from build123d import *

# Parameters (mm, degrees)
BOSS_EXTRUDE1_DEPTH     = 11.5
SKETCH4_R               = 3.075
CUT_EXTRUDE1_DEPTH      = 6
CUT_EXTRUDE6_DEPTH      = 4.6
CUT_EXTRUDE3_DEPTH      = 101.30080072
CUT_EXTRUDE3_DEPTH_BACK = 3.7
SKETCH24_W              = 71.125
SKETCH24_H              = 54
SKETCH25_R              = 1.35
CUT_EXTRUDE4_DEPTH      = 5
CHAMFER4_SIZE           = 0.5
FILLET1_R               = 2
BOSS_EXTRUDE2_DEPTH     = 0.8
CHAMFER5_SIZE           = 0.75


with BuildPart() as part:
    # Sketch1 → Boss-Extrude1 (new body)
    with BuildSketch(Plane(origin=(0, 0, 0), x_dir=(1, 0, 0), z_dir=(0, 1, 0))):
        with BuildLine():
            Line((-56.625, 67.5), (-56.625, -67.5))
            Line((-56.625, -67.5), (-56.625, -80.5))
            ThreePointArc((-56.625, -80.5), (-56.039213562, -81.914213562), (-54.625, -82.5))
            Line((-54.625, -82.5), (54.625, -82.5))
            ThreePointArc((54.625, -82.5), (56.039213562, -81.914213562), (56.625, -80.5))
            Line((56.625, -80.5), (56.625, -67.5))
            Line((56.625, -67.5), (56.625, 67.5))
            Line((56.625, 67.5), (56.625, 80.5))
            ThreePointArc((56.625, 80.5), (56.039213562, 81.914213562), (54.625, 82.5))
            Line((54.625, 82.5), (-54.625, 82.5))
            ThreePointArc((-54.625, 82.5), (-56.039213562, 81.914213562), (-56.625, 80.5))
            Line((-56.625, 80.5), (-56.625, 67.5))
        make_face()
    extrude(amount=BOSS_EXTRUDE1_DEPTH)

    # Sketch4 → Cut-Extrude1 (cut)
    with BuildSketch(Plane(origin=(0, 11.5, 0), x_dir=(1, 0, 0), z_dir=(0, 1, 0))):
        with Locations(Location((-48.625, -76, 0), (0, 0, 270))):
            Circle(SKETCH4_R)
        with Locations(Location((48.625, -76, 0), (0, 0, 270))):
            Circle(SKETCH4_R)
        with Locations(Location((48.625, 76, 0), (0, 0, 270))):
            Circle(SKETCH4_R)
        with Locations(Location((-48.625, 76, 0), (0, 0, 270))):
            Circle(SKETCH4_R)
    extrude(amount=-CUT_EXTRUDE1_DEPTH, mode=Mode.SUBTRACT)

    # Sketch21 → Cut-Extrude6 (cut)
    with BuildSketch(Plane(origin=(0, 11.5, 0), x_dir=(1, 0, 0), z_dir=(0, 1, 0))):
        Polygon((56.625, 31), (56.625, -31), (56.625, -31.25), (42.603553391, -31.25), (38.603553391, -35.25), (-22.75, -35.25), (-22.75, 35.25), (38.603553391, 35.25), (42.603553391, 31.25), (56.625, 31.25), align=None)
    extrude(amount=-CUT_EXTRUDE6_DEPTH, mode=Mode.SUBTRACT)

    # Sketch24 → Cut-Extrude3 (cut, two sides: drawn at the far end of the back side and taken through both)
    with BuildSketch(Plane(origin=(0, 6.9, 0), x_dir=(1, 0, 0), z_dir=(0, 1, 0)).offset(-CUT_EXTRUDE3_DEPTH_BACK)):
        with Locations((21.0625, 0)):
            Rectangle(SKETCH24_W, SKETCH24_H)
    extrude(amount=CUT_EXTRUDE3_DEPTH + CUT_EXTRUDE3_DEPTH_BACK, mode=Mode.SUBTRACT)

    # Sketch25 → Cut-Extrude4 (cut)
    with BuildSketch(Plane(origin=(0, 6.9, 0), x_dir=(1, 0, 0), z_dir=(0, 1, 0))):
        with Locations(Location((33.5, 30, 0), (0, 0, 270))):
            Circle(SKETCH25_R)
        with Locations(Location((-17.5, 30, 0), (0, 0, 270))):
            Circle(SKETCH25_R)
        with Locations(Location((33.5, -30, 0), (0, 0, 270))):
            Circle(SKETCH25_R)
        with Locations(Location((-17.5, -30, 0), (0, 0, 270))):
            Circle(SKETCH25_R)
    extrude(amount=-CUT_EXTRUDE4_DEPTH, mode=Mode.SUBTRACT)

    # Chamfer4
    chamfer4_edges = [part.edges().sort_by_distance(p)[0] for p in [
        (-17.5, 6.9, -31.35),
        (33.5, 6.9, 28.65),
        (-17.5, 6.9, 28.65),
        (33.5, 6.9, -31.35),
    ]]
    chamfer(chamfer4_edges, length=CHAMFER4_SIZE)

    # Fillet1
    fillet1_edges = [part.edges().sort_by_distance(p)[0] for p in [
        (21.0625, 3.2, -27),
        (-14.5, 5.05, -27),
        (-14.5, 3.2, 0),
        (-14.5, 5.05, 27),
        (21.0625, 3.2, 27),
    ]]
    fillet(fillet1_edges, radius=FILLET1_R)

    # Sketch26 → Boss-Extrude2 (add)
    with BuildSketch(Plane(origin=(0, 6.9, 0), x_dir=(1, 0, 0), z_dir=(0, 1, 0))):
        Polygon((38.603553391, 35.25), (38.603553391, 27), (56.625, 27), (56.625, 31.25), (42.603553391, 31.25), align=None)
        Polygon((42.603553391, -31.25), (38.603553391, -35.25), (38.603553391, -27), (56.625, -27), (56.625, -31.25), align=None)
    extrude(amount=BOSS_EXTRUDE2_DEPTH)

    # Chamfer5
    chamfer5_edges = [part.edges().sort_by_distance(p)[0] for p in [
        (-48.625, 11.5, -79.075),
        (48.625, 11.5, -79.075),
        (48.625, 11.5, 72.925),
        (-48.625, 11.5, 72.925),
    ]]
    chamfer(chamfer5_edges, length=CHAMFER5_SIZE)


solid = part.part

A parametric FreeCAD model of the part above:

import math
import FreeCAD as App
import Part
import Sketcher

V = App.Vector


def edges_at(feature, points):
    """Names of the edges that pass closest to the given points."""
    edges = feature.Shape.Edges
    near = lambda p: min(range(len(edges)), key=lambda i: edges[i].distToShape(Part.Vertex(*p))[0])
    return sorted({f"Edge{near(p) + 1}" for p in points})

doc = App.newDocument("Part")
body = doc.addObject("PartDesign::Body", "Body")

# Sketch on XZ plane
sketch1 = body.newObject("Sketcher::SketchObject", "Sketch")
sketch1.AttachmentSupport = (doc.getObject("XZ_Plane"), [""])
sketch1.MapMode = "FlatFace"
sketch1.addGeometry([
    Part.ArcOfCircle(Part.Circle(V(-54.6, 80.5, 0), V(0, 0, 1), 2), math.radians(90), math.radians(180)),  # 0
    Part.LineSegment(V(-54.6, 82.5, 0), V(54.6, 82.5, 0)),  # 1
    Part.ArcOfCircle(Part.Circle(V(54.6, 80.5, 0), V(0, 0, 1), 2), math.radians(0), math.radians(90)),  # 2
    Part.LineSegment(V(56.6, 80.5, 0), V(56.6, -80.5, 0)),  # 3
    Part.ArcOfCircle(Part.Circle(V(54.6, -80.5, 0), V(0, 0, 1), 2), math.radians(-90), math.radians(0)),  # 4
    Part.LineSegment(V(54.6, -82.5, 0), V(-54.6, -82.5, 0)),  # 5
    Part.ArcOfCircle(Part.Circle(V(-54.6, -80.5, 0), V(0, 0, 1), 2), math.radians(-180), math.radians(-90)),  # 6
    Part.LineSegment(V(-56.6, -80.5, 0), V(-56.6, 80.5, 0)),  # 7
], False)
sketch1.addConstraint([
    Sketcher.Constraint("Tangent", 0, 1, 1, 1),
    Sketcher.Constraint("Tangent", 1, 2, 2, 2),
    Sketcher.Constraint("Tangent", 2, 1, 3, 1),
    Sketcher.Constraint("Tangent", 3, 2, 4, 2),
    Sketcher.Constraint("Tangent", 4, 1, 5, 1),
    Sketcher.Constraint("Tangent", 5, 2, 6, 2),
    Sketcher.Constraint("Tangent", 6, 1, 7, 1),
    Sketcher.Constraint("Tangent", 7, 2, 0, 2),
    Sketcher.Constraint("Horizontal", 1),
    Sketcher.Constraint("Vertical", 3),
    Sketcher.Constraint("Horizontal", 5),
    Sketcher.Constraint("Vertical", 7),
    Sketcher.Constraint("Equal", 0, 2),
    Sketcher.Constraint("Equal", 2, 4),
    Sketcher.Constraint("Equal", 4, 6),
    Sketcher.Constraint("Symmetric", 0, 3, 4, 3, -1, 1),
    Sketcher.Constraint("Radius", 0, 2.0),
    Sketcher.Constraint("DistanceY", 3, 2, 3, 1, 161.0),
    Sketcher.Constraint("DistanceX", 1, 1, 1, 2, 109.25),
])
pad1 = body.newObject("PartDesign::Pad", "Pad")
pad1.Profile = sketch1
pad1.Length = 11.5
pad1.Reversed = True

# Sketch on XZ plane
sketch2 = body.newObject("Sketcher::SketchObject", "Sketch001")
sketch2.AttachmentSupport = (doc.getObject("XZ_Plane"), [""])
sketch2.MapMode = "FlatFace"
sketch2.AttachmentOffset = App.Placement(V(0, 0, -11.5), App.Rotation())
sketch2.addGeometry([
    Part.Circle(V(-48.6, 76, 0), V(0, 0, 1), 3.1),
    Part.Circle(V(48.6, 76, 0), V(0, 0, 1), 3.1),
    Part.Circle(V(48.6, -76, 0), V(0, 0, 1), 3.1),
    Part.Circle(V(-48.6, -76, 0), V(0, 0, 1), 3.1),
], False)
sketch2.addConstraint([
    Sketcher.Constraint("Equal", 0, 1),
    Sketcher.Constraint("Equal", 1, 2),
    Sketcher.Constraint("Equal", 2, 3),
    Sketcher.Constraint("Symmetric", 0, 3, 2, 3, -1, 1),
    Sketcher.Constraint("Symmetric", 1, 3, 3, 3, -1, 1),
    Sketcher.Constraint("Symmetric", 0, 3, 1, 3, -2),
    Sketcher.Constraint("Diameter", 0, 6.15),
    Sketcher.Constraint("DistanceY", -1, 1, 0, 3, 76.0),
    Sketcher.Constraint("DistanceX", 0, 3, 1, 3, 97.25),
])
pocket1 = body.newObject("PartDesign::Pocket", "Pocket")
pocket1.Profile = sketch2
pocket1.Length = 6
pocket1.Reversed = True

# Sketch on XZ plane
sketch3 = body.newObject("Sketcher::SketchObject", "Sketch002")
sketch3.AttachmentSupport = (doc.getObject("XZ_Plane"), [""])
sketch3.MapMode = "FlatFace"
sketch3.AttachmentOffset = App.Placement(V(0, 0, -11.5), App.Rotation())
sketch3.addGeometry([
    Part.LineSegment(V(57, 31, 0), V(57, -31, 0)),  # 0
    Part.LineSegment(V(57, -31, 0), V(43, -31, 0)),  # 1
    Part.LineSegment(V(43, -31, 0), V(39, -35, 0)),  # 2
    Part.LineSegment(V(39, -35, 0), V(-23, -35, 0)),  # 3
    Part.LineSegment(V(-23, -35, 0), V(-23, 35, 0)),  # 4
    Part.LineSegment(V(-23, 35, 0), V(39, 35, 0)),  # 5
    Part.LineSegment(V(39, 35, 0), V(43, 31, 0)),  # 6
    Part.LineSegment(V(43, 31, 0), V(57, 31, 0)),  # 7
], False)
sketch3.addConstraint([
    Sketcher.Constraint("Coincident", 0, 2, 1, 1),
    Sketcher.Constraint("Coincident", 1, 2, 2, 1),
    Sketcher.Constraint("Coincident", 2, 2, 3, 1),
    Sketcher.Constraint("Coincident", 3, 2, 4, 1),
    Sketcher.Constraint("Coincident", 4, 2, 5, 1),
    Sketcher.Constraint("Coincident", 5, 2, 6, 1),
    Sketcher.Constraint("Coincident", 6, 2, 7, 1),
    Sketcher.Constraint("Coincident", 7, 2, 0, 1),
    Sketcher.Constraint("Vertical", 0),
    Sketcher.Constraint("Horizontal", 1),
    Sketcher.Constraint("Horizontal", 3),
    Sketcher.Constraint("Vertical", 4),
    Sketcher.Constraint("Horizontal", 5),
    Sketcher.Constraint("Horizontal", 7),
    Sketcher.Constraint("Symmetric", 2, 2, 5, 2, -1),
    Sketcher.Constraint("Symmetric", 1, 2, 6, 2, -1),
    Sketcher.Constraint("Perpendicular", 2, 6),
    Sketcher.Constraint("DistanceY", 0, 2, 0, 1, 62.5),
    Sketcher.Constraint("DistanceY", 4, 1, 4, 2, 70.5),
    Sketcher.Constraint("DistanceX", 3, 2, -1, 1, 22.75),
    Sketcher.Constraint("DistanceX", -1, 1, 0, 2, 56.625),
    Sketcher.Constraint("DistanceX", 1, 2, 1, 1, 14.021447),
])
pocket2 = body.newObject("PartDesign::Pocket", "Pocket001")
pocket2.Profile = sketch3
pocket2.Length = 4.6
pocket2.Reversed = True

# Sketch on XZ plane
sketch4 = body.newObject("Sketcher::SketchObject", "Sketch003")
sketch4.AttachmentSupport = (doc.getObject("XZ_Plane"), [""])
sketch4.MapMode = "FlatFace"
sketch4.AttachmentOffset = App.Placement(V(0, 0, -6.9), App.Rotation())
sketch4.addGeometry([
    Part.LineSegment(V(-14, -27, 0), V(-14, 27, 0)),
    Part.LineSegment(V(-14, 27, 0), V(57, 27, 0)),
    Part.LineSegment(V(57, 27, 0), V(57, -27, 0)),
    Part.LineSegment(V(57, -27, 0), V(-14, -27, 0)),
], False)
sketch4.addConstraint([
    Sketcher.Constraint("Coincident", 0, 2, 1, 1),
    Sketcher.Constraint("Coincident", 1, 2, 2, 1),
    Sketcher.Constraint("Coincident", 2, 2, 3, 1),
    Sketcher.Constraint("Coincident", 3, 2, 0, 1),
    Sketcher.Constraint("Vertical", 0),
    Sketcher.Constraint("Horizontal", 1),
    Sketcher.Constraint("Vertical", 2),
    Sketcher.Constraint("Horizontal", 3),
    Sketcher.Constraint("DistanceY", 0, 1, 0, 2, 54.0),
    Sketcher.Constraint("DistanceY", -1, 1, 0, 2, 27.0),
    Sketcher.Constraint("DistanceX", 0, 2, -1, 1, 14.5),
    Sketcher.Constraint("DistanceX", 1, 1, 1, 2, 71.125),
])
pocket3 = body.newObject("PartDesign::Pocket", "Pocket002")
pocket3.Profile = sketch4
pocket3.Type = "TwoLengths"
pocket3.Length = 101.300801
pocket3.Length2 = 3.7

# Sketch on XZ plane
sketch5 = body.newObject("Sketcher::SketchObject", "Sketch004")
sketch5.AttachmentSupport = (doc.getObject("XZ_Plane"), [""])
sketch5.MapMode = "FlatFace"
sketch5.AttachmentOffset = App.Placement(V(0, 0, -6.9), App.Rotation())
sketch5.addGeometry([
    Part.Circle(V(33.5, -30, 0), V(0, 0, 1), 1.4),
    Part.Circle(V(-17.5, -30, 0), V(0, 0, 1), 1.4),
    Part.Circle(V(33.5, 30, 0), V(0, 0, 1), 1.4),
    Part.Circle(V(-17.5, 30, 0), V(0, 0, 1), 1.4),
], False)
sketch5.addConstraint([
    Sketcher.Constraint("Equal", 0, 1),
    Sketcher.Constraint("Equal", 1, 2),
    Sketcher.Constraint("Equal", 2, 3),
    Sketcher.Constraint("Symmetric", 0, 3, 2, 3, -1),
    Sketcher.Constraint("Symmetric", 1, 3, 3, 3, -1),
    Sketcher.Constraint("Horizontal", 0, 3, 1, 3),
    Sketcher.Constraint("Diameter", 0, 2.7),
    Sketcher.Constraint("DistanceY", 0, 3, -1, 1, 30.0),
    Sketcher.Constraint("DistanceX", 1, 3, 0, 3, 51.0),
    Sketcher.Constraint("DistanceX", -1, 1, 0, 3, 33.5),
])
pocket4 = body.newObject("PartDesign::Pocket", "Pocket003")
pocket4.Profile = sketch5
pocket4.Length = 5
pocket4.Reversed = True
doc.recompute()

chamfer = body.newObject("PartDesign::Chamfer", "Chamfer")
chamfer.Base = (pocket4, edges_at(pocket4, [
    (-17.5, 6.9, -31.35),
    (33.5, 6.9, 28.65),
    (-17.5, 6.9, 28.65),
    (33.5, 6.9, -31.35),
]))
chamfer.Size = 0.5
doc.recompute()

fillet = body.newObject("PartDesign::Fillet", "Fillet")
fillet.Base = (chamfer, edges_at(chamfer, [
    (21.062, 3.2, -27),
    (-14.5, 5.05, -27),
    (-14.5, 3.2, 0),
    (-14.5, 5.05, 27),
    (21.062, 3.2, 27),
]))
fillet.Radius = 2

# Sketch on XZ plane
sketch6 = body.newObject("Sketcher::SketchObject", "Sketch005")
sketch6.AttachmentSupport = (doc.getObject("XZ_Plane"), [""])
sketch6.MapMode = "FlatFace"
sketch6.AttachmentOffset = App.Placement(V(0, 0, -6.9), App.Rotation())
sketch6.addGeometry([
    Part.LineSegment(V(38.6, -35.2, 0), V(38.6, -27, 0)),  # 0
    Part.LineSegment(V(38.6, -27, 0), V(56.6, -27, 0)),  # 1
    Part.LineSegment(V(56.6, -27, 0), V(56.6, -31.2, 0)),  # 2
    Part.LineSegment(V(56.6, -31.2, 0), V(42.6, -31.2, 0)),  # 3
    Part.LineSegment(V(42.6, -31.2, 0), V(38.6, -35.2, 0)),  # 4
    Part.LineSegment(V(38.6, 35.2, 0), V(42.6, 31.2, 0)),  # 5
    Part.LineSegment(V(42.6, 31.2, 0), V(56.6, 31.2, 0)),  # 6
    Part.LineSegment(V(56.6, 31.2, 0), V(56.6, 27, 0)),  # 7
    Part.LineSegment(V(56.6, 27, 0), V(38.6, 27, 0)),  # 8
    Part.LineSegment(V(38.6, 27, 0), V(38.6, 35.2, 0)),  # 9
], False)
sketch6.addConstraint([
    Sketcher.Constraint("Coincident", 0, 2, 1, 1),
    Sketcher.Constraint("Coincident", 1, 2, 2, 1),
    Sketcher.Constraint("Coincident", 2, 2, 3, 1),
    Sketcher.Constraint("Coincident", 3, 2, 4, 1),
    Sketcher.Constraint("Coincident", 4, 2, 0, 1),
    Sketcher.Constraint("Coincident", 5, 2, 6, 1),
    Sketcher.Constraint("Coincident", 6, 2, 7, 1),
    Sketcher.Constraint("Coincident", 7, 2, 8, 1),
    Sketcher.Constraint("Coincident", 8, 2, 9, 1),
    Sketcher.Constraint("Coincident", 9, 2, 5, 1),
    Sketcher.Constraint("Vertical", 0),
    Sketcher.Constraint("Horizontal", 1),
    Sketcher.Constraint("Vertical", 2),
    Sketcher.Constraint("Horizontal", 3),
    Sketcher.Constraint("Horizontal", 6),
    Sketcher.Constraint("Vertical", 7),
    Sketcher.Constraint("Horizontal", 8),
    Sketcher.Constraint("Vertical", 9),
    Sketcher.Constraint("Symmetric", 3, 2, 5, 2, -1),
    Sketcher.Constraint("Symmetric", 1, 2, 7, 2, -1),
    Sketcher.Constraint("Symmetric", 4, 2, 9, 2, -1),
    Sketcher.Constraint("Perpendicular", 4, 5),
    Sketcher.Constraint("DistanceY", 0, 2, -1, 1, 27.0),
    Sketcher.Constraint("DistanceX", 0, 2, 3, 2, 4.0),
    Sketcher.Constraint("DistanceY", 0, 1, 0, 2, 8.25),
    Sketcher.Constraint("DistanceX", -1, 1, 1, 2, 56.625),
    Sketcher.Constraint("DistanceX", 1, 1, 1, 2, 18.021447),
])
pad2 = body.newObject("PartDesign::Pad", "Pad001")
pad2.Profile = sketch6
pad2.Length = 0.8
pad2.Reversed = True
doc.recompute()

chamfer2 = body.newObject("PartDesign::Chamfer", "Chamfer001")
chamfer2.Base = (pad2, edges_at(pad2, [
    (-48.625, 11.5, -79.075),
    (48.625, 11.5, -79.075),
    (48.625, 11.5, 72.925),
    (-48.625, 11.5, 72.925),
]))
chamfer2.Size = 0.75

doc.recompute()
